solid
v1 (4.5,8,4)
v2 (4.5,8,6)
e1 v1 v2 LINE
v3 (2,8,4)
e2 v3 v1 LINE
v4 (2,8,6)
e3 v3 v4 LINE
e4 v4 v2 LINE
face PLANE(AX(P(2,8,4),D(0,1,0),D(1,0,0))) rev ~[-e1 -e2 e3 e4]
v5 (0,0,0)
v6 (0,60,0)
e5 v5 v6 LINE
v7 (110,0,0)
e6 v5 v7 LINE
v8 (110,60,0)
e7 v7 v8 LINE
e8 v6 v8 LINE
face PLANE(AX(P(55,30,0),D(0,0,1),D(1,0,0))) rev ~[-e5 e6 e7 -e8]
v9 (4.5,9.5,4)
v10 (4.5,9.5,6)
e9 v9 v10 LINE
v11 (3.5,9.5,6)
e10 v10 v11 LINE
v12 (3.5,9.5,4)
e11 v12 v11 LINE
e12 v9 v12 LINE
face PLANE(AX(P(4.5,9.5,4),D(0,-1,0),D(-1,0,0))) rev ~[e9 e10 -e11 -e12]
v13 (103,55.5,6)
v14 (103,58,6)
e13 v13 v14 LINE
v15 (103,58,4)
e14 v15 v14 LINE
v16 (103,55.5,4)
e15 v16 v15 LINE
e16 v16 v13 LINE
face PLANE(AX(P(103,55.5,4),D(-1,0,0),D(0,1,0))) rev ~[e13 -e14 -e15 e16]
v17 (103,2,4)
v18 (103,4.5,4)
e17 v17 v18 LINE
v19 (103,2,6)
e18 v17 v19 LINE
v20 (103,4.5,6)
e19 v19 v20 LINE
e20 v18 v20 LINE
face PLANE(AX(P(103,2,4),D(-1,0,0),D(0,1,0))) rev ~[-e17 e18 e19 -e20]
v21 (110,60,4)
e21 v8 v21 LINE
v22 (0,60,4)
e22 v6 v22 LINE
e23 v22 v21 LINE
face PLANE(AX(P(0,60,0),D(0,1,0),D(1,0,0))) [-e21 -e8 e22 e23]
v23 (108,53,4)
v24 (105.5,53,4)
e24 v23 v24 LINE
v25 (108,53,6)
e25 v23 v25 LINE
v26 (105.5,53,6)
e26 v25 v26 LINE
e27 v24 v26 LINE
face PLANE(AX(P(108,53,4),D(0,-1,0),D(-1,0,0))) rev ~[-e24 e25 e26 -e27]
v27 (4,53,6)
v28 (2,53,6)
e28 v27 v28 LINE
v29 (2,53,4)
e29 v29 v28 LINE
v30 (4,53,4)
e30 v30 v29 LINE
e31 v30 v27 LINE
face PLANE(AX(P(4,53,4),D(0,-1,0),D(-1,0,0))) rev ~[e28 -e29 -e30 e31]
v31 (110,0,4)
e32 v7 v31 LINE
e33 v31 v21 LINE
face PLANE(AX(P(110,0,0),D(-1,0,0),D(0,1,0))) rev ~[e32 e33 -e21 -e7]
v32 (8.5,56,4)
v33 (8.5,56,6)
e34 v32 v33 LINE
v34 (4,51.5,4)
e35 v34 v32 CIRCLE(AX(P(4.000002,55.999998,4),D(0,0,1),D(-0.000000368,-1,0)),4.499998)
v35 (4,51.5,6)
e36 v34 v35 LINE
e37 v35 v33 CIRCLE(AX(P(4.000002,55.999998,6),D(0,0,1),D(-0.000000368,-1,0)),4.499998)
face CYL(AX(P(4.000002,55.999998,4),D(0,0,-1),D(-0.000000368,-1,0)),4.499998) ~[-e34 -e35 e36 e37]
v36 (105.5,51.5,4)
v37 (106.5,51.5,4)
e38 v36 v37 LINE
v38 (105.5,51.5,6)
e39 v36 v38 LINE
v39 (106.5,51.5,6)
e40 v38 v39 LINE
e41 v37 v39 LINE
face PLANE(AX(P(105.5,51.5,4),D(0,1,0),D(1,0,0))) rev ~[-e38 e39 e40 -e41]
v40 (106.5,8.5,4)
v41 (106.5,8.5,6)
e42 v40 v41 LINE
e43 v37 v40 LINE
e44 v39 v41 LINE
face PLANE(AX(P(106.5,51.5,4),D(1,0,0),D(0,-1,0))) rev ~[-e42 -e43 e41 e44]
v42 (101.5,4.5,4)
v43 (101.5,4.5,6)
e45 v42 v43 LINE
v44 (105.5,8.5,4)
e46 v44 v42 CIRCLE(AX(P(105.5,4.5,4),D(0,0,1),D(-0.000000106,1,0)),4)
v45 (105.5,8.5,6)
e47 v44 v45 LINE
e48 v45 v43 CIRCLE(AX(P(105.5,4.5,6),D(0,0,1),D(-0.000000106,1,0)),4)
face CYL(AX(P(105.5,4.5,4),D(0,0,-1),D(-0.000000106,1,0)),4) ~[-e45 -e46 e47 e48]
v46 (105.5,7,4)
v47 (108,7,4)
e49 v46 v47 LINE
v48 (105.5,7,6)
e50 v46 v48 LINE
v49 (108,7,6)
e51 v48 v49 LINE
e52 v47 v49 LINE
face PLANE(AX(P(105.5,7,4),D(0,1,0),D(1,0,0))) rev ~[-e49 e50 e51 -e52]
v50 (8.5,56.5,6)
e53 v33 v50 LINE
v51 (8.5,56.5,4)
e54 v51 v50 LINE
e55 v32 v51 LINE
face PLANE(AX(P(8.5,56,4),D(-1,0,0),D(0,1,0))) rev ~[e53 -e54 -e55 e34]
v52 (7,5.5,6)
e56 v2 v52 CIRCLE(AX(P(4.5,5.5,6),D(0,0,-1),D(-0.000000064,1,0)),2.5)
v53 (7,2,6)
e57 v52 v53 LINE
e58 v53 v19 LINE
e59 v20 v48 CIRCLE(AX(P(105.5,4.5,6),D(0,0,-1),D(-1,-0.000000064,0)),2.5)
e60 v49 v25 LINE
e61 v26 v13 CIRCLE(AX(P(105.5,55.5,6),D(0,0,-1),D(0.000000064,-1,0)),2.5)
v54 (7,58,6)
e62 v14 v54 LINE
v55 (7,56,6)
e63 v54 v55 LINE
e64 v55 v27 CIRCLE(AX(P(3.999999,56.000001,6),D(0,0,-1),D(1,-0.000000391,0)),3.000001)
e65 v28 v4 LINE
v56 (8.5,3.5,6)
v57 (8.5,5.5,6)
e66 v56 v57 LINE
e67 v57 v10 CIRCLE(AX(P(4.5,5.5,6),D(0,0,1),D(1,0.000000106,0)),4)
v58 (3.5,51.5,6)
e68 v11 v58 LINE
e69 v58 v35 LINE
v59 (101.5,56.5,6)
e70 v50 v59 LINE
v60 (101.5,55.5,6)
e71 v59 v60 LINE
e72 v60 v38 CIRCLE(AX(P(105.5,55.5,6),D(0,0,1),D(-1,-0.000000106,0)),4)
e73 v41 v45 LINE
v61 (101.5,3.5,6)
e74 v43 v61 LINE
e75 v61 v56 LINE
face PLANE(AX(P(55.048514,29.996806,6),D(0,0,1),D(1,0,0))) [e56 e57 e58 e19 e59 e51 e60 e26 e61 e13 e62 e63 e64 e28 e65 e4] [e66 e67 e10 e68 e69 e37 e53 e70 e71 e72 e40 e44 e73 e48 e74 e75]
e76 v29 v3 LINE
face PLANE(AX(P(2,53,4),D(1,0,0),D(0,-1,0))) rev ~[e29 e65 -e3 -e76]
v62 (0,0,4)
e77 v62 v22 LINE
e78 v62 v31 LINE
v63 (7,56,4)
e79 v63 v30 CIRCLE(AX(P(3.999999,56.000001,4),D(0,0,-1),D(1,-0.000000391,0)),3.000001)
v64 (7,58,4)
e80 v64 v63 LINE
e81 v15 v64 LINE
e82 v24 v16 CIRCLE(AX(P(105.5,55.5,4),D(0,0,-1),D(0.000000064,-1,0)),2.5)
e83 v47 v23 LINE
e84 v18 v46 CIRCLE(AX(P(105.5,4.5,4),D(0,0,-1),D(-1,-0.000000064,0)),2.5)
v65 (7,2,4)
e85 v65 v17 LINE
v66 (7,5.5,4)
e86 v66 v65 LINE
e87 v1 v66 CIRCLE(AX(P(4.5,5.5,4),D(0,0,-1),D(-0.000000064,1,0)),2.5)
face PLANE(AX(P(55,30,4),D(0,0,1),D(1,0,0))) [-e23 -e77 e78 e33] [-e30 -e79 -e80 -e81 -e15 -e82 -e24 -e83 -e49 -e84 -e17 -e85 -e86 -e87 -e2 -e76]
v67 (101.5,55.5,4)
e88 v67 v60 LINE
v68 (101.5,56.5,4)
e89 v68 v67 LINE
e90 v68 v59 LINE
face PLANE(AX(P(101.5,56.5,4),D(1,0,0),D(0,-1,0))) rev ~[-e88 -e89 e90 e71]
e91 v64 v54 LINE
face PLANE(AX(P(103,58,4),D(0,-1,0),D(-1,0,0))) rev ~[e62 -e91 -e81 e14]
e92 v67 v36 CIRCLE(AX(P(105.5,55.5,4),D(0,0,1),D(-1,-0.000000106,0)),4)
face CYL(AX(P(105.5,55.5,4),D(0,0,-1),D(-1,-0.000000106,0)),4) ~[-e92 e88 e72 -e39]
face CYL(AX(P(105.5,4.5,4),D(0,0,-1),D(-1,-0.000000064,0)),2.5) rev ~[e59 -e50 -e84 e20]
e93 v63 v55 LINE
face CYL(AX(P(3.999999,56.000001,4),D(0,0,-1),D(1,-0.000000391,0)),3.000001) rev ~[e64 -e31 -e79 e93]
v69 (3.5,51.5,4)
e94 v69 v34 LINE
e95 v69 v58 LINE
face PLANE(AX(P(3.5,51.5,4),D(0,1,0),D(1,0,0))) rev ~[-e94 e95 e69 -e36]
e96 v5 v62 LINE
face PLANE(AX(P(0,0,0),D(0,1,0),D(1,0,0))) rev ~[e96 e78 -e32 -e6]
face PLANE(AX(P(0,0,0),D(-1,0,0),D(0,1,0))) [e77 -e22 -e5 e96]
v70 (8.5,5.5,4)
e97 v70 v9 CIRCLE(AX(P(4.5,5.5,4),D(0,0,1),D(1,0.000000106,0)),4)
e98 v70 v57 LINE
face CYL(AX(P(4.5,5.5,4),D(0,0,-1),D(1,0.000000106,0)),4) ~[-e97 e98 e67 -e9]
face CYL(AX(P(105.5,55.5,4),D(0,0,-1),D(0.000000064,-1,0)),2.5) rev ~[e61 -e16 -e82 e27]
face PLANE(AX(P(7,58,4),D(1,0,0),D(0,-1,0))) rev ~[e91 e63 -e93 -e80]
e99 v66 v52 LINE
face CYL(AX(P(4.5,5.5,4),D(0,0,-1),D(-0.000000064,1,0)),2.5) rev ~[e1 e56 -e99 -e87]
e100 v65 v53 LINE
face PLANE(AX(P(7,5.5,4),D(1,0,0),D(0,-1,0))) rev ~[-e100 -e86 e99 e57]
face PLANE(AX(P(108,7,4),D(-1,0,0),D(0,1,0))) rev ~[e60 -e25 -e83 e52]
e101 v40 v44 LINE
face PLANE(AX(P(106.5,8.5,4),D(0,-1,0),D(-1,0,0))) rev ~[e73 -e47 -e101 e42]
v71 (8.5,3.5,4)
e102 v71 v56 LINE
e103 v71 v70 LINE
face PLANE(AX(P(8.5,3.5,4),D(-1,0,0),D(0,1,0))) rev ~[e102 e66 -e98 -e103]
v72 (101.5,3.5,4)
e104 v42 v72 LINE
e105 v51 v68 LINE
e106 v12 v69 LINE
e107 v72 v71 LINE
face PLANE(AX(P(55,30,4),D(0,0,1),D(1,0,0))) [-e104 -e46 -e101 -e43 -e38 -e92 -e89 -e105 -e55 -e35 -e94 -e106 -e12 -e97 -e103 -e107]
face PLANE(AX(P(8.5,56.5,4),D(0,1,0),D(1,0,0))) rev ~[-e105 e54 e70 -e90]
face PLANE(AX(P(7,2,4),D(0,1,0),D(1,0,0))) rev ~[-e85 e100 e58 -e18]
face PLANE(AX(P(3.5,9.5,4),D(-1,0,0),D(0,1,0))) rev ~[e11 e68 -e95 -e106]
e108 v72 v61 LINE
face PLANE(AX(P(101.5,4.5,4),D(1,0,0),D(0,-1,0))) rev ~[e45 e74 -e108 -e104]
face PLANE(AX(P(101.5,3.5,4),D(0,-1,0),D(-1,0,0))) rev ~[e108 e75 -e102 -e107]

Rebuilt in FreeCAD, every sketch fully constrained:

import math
import FreeCAD as App
import Part
import Sketcher

V = App.Vector


def add_polygon(sketch, points):
    """Adds a closed chain of lines whose ends are joined by coincident constraints."""
    first, n = sketch.GeometryCount, len(points)
    for a, b in zip(points, points[1:] + points[:1]):
        sketch.addGeometry(Part.LineSegment(App.Vector(*a, 0), App.Vector(*b, 0)), False)
    for i in range(n):
        sketch.addConstraint(Sketcher.Constraint("Coincident", first + i, 2, first + (i + 1) % n, 1))

doc = App.newDocument("Part")
params = doc.addObject("Spreadsheet::Sheet", "Params")
for row, (alias, value) in enumerate([
    ("sketch1_width", "110 mm"),
    ("sketch1_height", "60 mm"),
    ("pad1_length", "4 mm"),
    ("sketch2_radius", "3.000001 mm"),
    ("sketch2_radius2", "4 mm"),
    ("sketch2_radius3", "2.5 mm"),
    ("sketch2_width", "2 mm"),
    ("sketch2_width2", "96 mm"),
    ("pad2_length", "2 mm"),
], start=1):
    params.set(f"A{row}", alias)
    params.set(f"B{row}", "=" + value)
    params.setAlias(f"B{row}", alias)

body = doc.addObject("PartDesign::Body", "Body")

# Sketch on XY plane
sketch1 = body.newObject("Sketcher::SketchObject", "Sketch")
sketch1.AttachmentSupport = (doc.getObject("XY_Plane"), [""])
sketch1.MapMode = "FlatFace"
add_polygon(sketch1, [(0, 60), (0, 0), (110, 0), (110, 60)])  # lines 0-3
sketch1.addConstraint([
    Sketcher.Constraint("Vertical", 0),
    Sketcher.Constraint("Horizontal", 1),
    Sketcher.Constraint("Vertical", 2),
    Sketcher.Constraint("Horizontal", 3),
    Sketcher.Constraint("Coincident", 0, 2, -1, 1),
    Sketcher.Constraint("DistanceX", 1, 1, 1, 2, 110.0),
    Sketcher.Constraint("DistanceY", 0, 2, 0, 1, 60.0),
])
sketch1.setExpression("Constraints[9]", "Params.sketch1_width")
sketch1.setExpression("Constraints[10]", "Params.sketch1_height")
pad1 = body.newObject("PartDesign::Pad", "Pad")
pad1.Profile = sketch1
pad1.setExpression("Length", "Params.pad1_length")

# Sketch on XY plane
sketch2 = body.newObject("Sketcher::SketchObject", "Sketch001")
sketch2.AttachmentSupport = (doc.getObject("XY_Plane"), [""])
sketch2.MapMode = "FlatFace"
sketch2.AttachmentOffset = App.Placement(V(0, 0, 4), App.Rotation())
sketch2.addGeometry([
    Part.ArcOfCircle(Part.Circle(V(4, 56, 0), V(0, 0, 1), 3), math.radians(-90), math.radians(0)),  # 0
    Part.LineSegment(V(4, 53, 0), V(2, 53, 0)),  # 1
    Part.LineSegment(V(2, 53, 0), V(2, 8, 0)),  # 2
    Part.LineSegment(V(2, 8, 0), V(4.5, 8, 0)),  # 3
    Part.ArcOfCircle(Part.Circle(V(4.5, 5.5, 0), V(0, 0, 1), 2.5), math.radians(0), math.radians(90)),  # 4
    Part.LineSegment(V(7, 5.5, 0), V(7, 2, 0)),  # 5
    Part.LineSegment(V(7, 2, 0), V(103, 2, 0)),  # 6
    Part.LineSegment(V(103, 2, 0), V(103, 4.5, 0)),  # 7
    Part.ArcOfCircle(Part.Circle(V(105.5, 4.5, 0), V(0, 0, 1), 2.5), math.radians(90), math.radians(180)),  # 8
    Part.LineSegment(V(105.5, 7, 0), V(108, 7, 0)),  # 9
    Part.LineSegment(V(108, 7, 0), V(108, 53, 0)),  # 10
    Part.LineSegment(V(108, 53, 0), V(105.5, 53, 0)),  # 11
    Part.ArcOfCircle(Part.Circle(V(105.5, 55.5, 0), V(0, 0, 1), 2.5), math.radians(180), math.radians(270)),  # 12
    Part.LineSegment(V(103, 55.5, 0), V(103, 58, 0)),  # 13
    Part.LineSegment(V(103, 58, 0), V(7, 58, 0)),  # 14
    Part.LineSegment(V(7, 58, 0), V(7, 56, 0)),  # 15
    Part.ArcOfCircle(Part.Circle(V(4.5, 5.5, 0), V(0, 0, 1), 4), math.radians(0), math.radians(90)),  # 16
    Part.LineSegment(V(4.5, 9.5, 0), V(3.5, 9.5, 0)),  # 17
    Part.LineSegment(V(3.5, 9.5, 0), V(3.5, 51.5, 0)),  # 18
    Part.LineSegment(V(3.5, 51.5, 0), V(4, 51.5, 0)),  # 19
    Part.ArcOfCircle(Part.Circle(V(4, 56, 0), V(0, 0, 1), 4.5), math.radians(-90), math.radians(0)),  # 20
    Part.LineSegment(V(8.5, 56, 0), V(8.5, 56.5, 0)),  # 21
    Part.LineSegment(V(8.5, 56.5, 0), V(101.5, 56.5, 0)),  # 22
    Part.LineSegment(V(101.5, 56.5, 0), V(101.5, 55.5, 0)),  # 23
    Part.ArcOfCircle(Part.Circle(V(105.5, 55.5, 0), V(0, 0, 1), 4), math.radians(-180), math.radians(-90)),  # 24
    Part.LineSegment(V(105.5, 51.5, 0), V(106.5, 51.5, 0)),  # 25
    Part.LineSegment(V(106.5, 51.5, 0), V(106.5, 8.5, 0)),  # 26
    Part.LineSegment(V(106.5, 8.5, 0), V(105.5, 8.5, 0)),  # 27
    Part.ArcOfCircle(Part.Circle(V(105.5, 4.5, 0), V(0, 0, 1), 4), math.radians(90), math.radians(180)),  # 28
    Part.LineSegment(V(101.5, 4.5, 0), V(101.5, 3.5, 0)),  # 29
    Part.LineSegment(V(101.5, 3.5, 0), V(8.5, 3.5, 0)),  # 30
    Part.LineSegment(V(8.5, 3.5, 0), V(8.5, 5.5, 0)),  # 31
], False)
sketch2.addConstraint([
    Sketcher.Constraint("Tangent", 0, 1, 1, 1),
    Sketcher.Constraint("Coincident", 1, 2, 2, 1),
    Sketcher.Constraint("Coincident", 2, 2, 3, 1),
    Sketcher.Constraint("Tangent", 3, 2, 4, 2),
    Sketcher.Constraint("Tangent", 4, 1, 5, 1),
    Sketcher.Constraint("Coincident", 5, 2, 6, 1),
    Sketcher.Constraint("Coincident", 6, 2, 7, 1),
    Sketcher.Constraint("Tangent", 7, 2, 8, 2),
    Sketcher.Constraint("Tangent", 8, 1, 9, 1),
    Sketcher.Constraint("Coincident", 9, 2, 10, 1),
    Sketcher.Constraint("Coincident", 10, 2, 11, 1),
    Sketcher.Constraint("Tangent", 11, 2, 12, 2),
    Sketcher.Constraint("Tangent", 12, 1, 13, 1),
    Sketcher.Constraint("Coincident", 13, 2, 14, 1),
    Sketcher.Constraint("Coincident", 14, 2, 15, 1),
    Sketcher.Constraint("Tangent", 15, 2, 0, 2),
    Sketcher.Constraint("Tangent", 16, 2, 17, 1),
    Sketcher.Constraint("Coincident", 17, 2, 18, 1),
    Sketcher.Constraint("Coincident", 18, 2, 19, 1),
    Sketcher.Constraint("Tangent", 19, 2, 20, 1),
    Sketcher.Constraint("Tangent", 20, 2, 21, 1),
    Sketcher.Constraint("Coincident", 21, 2, 22, 1),
    Sketcher.Constraint("Coincident", 22, 2, 23, 1),
    Sketcher.Constraint("Tangent", 23, 2, 24, 1),
    Sketcher.Constraint("Tangent", 24, 2, 25, 1),
    Sketcher.Constraint("Coincident", 25, 2, 26, 1),
    Sketcher.Constraint("Coincident", 26, 2, 27, 1),
    Sketcher.Constraint("Tangent", 27, 2, 28, 1),
    Sketcher.Constraint("Tangent", 28, 2, 29, 1),
    Sketcher.Constraint("Coincident", 29, 2, 30, 1),
    Sketcher.Constraint("Coincident", 30, 2, 31, 1),
    Sketcher.Constraint("Tangent", 31, 2, 16, 1),
    Sketcher.Constraint("Horizontal", 1),
    Sketcher.Constraint("Vertical", 2),
    Sketcher.Constraint("Horizontal", 3),
    Sketcher.Constraint("Vertical", 5),
    Sketcher.Constraint("Horizontal", 6),
    Sketcher.Constraint("Vertical", 7),
    Sketcher.Constraint("Horizontal", 9),
    Sketcher.Constraint("Vertical", 10),
    Sketcher.Constraint("Horizontal", 11),
    Sketcher.Constraint("Vertical", 13),
    Sketcher.Constraint("Horizontal", 14),
    Sketcher.Constraint("Vertical", 15),
    Sketcher.Constraint("Horizontal", 17),
    Sketcher.Constraint("Vertical", 18),
    Sketcher.Constraint("Horizontal", 19),
    Sketcher.Constraint("Vertical", 21),
    Sketcher.Constraint("Horizontal", 22),
    Sketcher.Constraint("Vertical", 23),
    Sketcher.Constraint("Horizontal", 25),
    Sketcher.Constraint("Vertical", 26),
    Sketcher.Constraint("Horizontal", 27),
    Sketcher.Constraint("Vertical", 29),
    Sketcher.Constraint("Horizontal", 30),
    Sketcher.Constraint("Vertical", 31),
    Sketcher.Constraint("Coincident", 16, 3, 4, 3),
    Sketcher.Constraint("Coincident", 20, 3, 0, 3),
    Sketcher.Constraint("Coincident", 24, 3, 12, 3),
    Sketcher.Constraint("Coincident", 28, 3, 8, 3),
    Sketcher.Constraint("Equal", 4, 8),
    Sketcher.Constraint("Equal", 8, 12),
    Sketcher.Constraint("Equal", 16, 24),
    Sketcher.Constraint("Equal", 24, 28),
    Sketcher.Constraint("Horizontal", 1, 2, 10, 2),
    Sketcher.Constraint("Horizontal", 19, 2, 24, 2),
    Sketcher.Constraint("Vertical", 8, 3, 12, 3),
    Sketcher.Constraint("Vertical", 5, 2, 14, 2),
    Sketcher.Constraint("Equal", 3, 9),
    Sketcher.Constraint("Equal", 17, 25),
    Sketcher.Constraint("Equal", 11, 7),
    Sketcher.Constraint("Equal", 7, 13),
    Sketcher.Constraint("Equal", 19, 21),
    Sketcher.Constraint("Equal", 23, 29),
    Sketcher.Constraint("Equal", 15, 31),
    Sketcher.Constraint("Radius", 0, 3.000001),
    Sketcher.Constraint("Radius", 16, 4.0),
    Sketcher.Constraint("Radius", 4, 2.5),
    Sketcher.Constraint("DistanceX", 1, 2, 1, 1, 2.0),
    Sketcher.Constraint("DistanceX", 6, 1, 6, 2, 96.0),
    Sketcher.Constraint("DistanceX", 17, 2, 17, 1, 1.0),
    Sketcher.Constraint("DistanceY", 2, 2, 2, 1, 45.0),
    Sketcher.Constraint("DistanceX", -1, 1, 0, 3, 3.999999),
    Sketcher.Constraint("DistanceY", -1, 1, 0, 3, 56.000001),
])
sketch2.setExpression("Constraints[75]", "Params.sketch2_radius")
sketch2.setExpression("Constraints[76]", "Params.sketch2_radius2")
sketch2.setExpression("Constraints[77]", "Params.sketch2_radius3")
sketch2.setExpression("Constraints[78]", "Params.sketch2_width")
sketch2.setExpression("Constraints[79]", "Params.sketch2_width2")
pad2 = body.newObject("PartDesign::Pad", "Pad001")
pad2.Profile = sketch2
pad2.setExpression("Length", "Params.pad2_length")

doc.recompute()
